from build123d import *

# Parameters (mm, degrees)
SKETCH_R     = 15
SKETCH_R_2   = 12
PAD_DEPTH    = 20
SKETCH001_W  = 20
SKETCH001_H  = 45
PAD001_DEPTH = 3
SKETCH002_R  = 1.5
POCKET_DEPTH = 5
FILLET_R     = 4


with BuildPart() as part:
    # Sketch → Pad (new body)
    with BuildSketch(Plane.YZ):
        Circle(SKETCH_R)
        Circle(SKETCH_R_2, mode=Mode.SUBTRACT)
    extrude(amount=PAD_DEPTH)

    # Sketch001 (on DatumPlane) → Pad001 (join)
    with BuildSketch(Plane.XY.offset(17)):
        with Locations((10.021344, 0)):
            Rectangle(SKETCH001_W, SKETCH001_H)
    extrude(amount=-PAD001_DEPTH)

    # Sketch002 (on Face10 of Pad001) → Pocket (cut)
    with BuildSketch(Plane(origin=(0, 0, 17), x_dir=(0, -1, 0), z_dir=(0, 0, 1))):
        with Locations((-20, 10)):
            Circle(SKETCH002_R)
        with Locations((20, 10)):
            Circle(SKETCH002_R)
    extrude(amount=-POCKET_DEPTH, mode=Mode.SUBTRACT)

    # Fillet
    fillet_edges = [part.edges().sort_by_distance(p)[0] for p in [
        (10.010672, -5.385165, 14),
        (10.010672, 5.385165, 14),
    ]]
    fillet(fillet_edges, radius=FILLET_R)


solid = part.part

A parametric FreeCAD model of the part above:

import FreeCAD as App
import Part
import Sketcher


def edges_at(feature, points):
    """Names of the edges that pass closest to the given points."""
    edges = feature.Shape.Edges
    near = lambda p: min(range(len(edges)), key=lambda i: edges[i].distToShape(Part.Vertex(*p))[0])
    return sorted({f"Edge{near(p) + 1}" for p in points})

doc = App.newDocument("Part")
body = doc.addObject("PartDesign::Body", "Body")

sketch1 = body.newObject("Sketcher::SketchObject", "Sketch")
sketch1.AttachmentSupport = (doc.getObject("YZ_Plane"), [""])
sketch1.MapMode = "FlatFace"
sketch1.addGeometry(Part.Circle(App.Vector(0, 0, 0), App.Vector(0, 0, 1), 15), False)
sketch1.addGeometry(Part.Circle(App.Vector(0, 0, 0), App.Vector(0, 0, 1), 12), False)
sketch1.addConstraint(Sketcher.Constraint("Coincident", 0, 3, -1, 1))
sketch1.addConstraint(Sketcher.Constraint("Coincident", 1, 3, -1, 1))
sketch1.addConstraint(Sketcher.Constraint("Diameter", 0, 30.0))
sketch1.addConstraint(Sketcher.Constraint("Diameter", 1, 24.0))
pad1 = body.newObject("PartDesign::Pad", "Pad")
pad1.Profile = sketch1
pad1.Length = 20

sketch2 = body.newObject("Sketcher::SketchObject", "Sketch001")
sketch2.AttachmentSupport = (doc.getObject("XY_Plane"), [""])
sketch2.MapMode = "FlatFace"
sketch2.AttachmentOffset = App.Placement(App.Vector(0, 0, 17), App.Rotation())
sketch2.addGeometry(Part.LineSegment(App.Vector(0.021344, 22.5, 0), App.Vector(0.021344, -22.5, 0)), False)
sketch2.addGeometry(Part.LineSegment(App.Vector(0.021344, -22.5, 0), App.Vector(20.021344, -22.5, 0)), False)
sketch2.addGeometry(Part.LineSegment(App.Vector(20.021344, -22.5, 0), App.Vector(20.021344, 22.5, 0)), False)
sketch2.addGeometry(Part.LineSegment(App.Vector(20.021344, 22.5, 0), App.Vector(0.021344, 22.5, 0)), False)
sketch2.addConstraint(Sketcher.Constraint("Coincident", 0, 2, 1, 1))
sketch2.addConstraint(Sketcher.Constraint("Coincident", 1, 2, 2, 1))
sketch2.addConstraint(Sketcher.Constraint("Coincident", 2, 2, 3, 1))
sketch2.addConstraint(Sketcher.Constraint("Coincident", 3, 2, 0, 1))
sketch2.addConstraint(Sketcher.Constraint("Vertical", 0))
sketch2.addConstraint(Sketcher.Constraint("Horizontal", 1))
sketch2.addConstraint(Sketcher.Constraint("Vertical", 2))
sketch2.addConstraint(Sketcher.Constraint("Horizontal", 3))
sketch2.addConstraint(Sketcher.Constraint("DistanceX", 1, 1, 1, 2, 20.0))
sketch2.addConstraint(Sketcher.Constraint("DistanceY", 0, 2, 0, 1, 45.0))
sketch2.addConstraint(Sketcher.Constraint("DistanceY", 0, 2, -1, 1, 22.5))
sketch2.addConstraint(Sketcher.Constraint("DistanceX", -1, 1, 0, 2, 0.021344))
pad2 = body.newObject("PartDesign::Pad", "Pad001")
pad2.Profile = sketch2
pad2.Length = 3
pad2.Reversed = True

sketch3 = body.newObject("Sketcher::SketchObject", "Sketch002")
sketch3.AttachmentSupport = (doc.getObject("XY_Plane"), [""])
sketch3.MapMode = "FlatFace"
sketch3.AttachmentOffset = App.Placement(App.Vector(0, 0, 17), App.Rotation())
sketch3.addGeometry(Part.Circle(App.Vector(10, 20, 0), App.Vector(0, 0, 1), 1.5), False)
sketch3.addGeometry(Part.Circle(App.Vector(10, -20, 0), App.Vector(0, 0, 1), 1.5), False)
sketch3.addConstraint(Sketcher.Constraint("Equal", 0, 1))
sketch3.addConstraint(Sketcher.Constraint("Symmetric", 0, 3, 1, 3, -1))
sketch3.addConstraint(Sketcher.Constraint("Diameter", 0, 3.0))
sketch3.addConstraint(Sketcher.Constraint("DistanceX", -1, 1, 0, 3, 10.0))
sketch3.addConstraint(Sketcher.Constraint("DistanceY", -1, 1, 0, 3, 20.0))
pocket1 = body.newObject("PartDesign::Pocket", "Pocket")
pocket1.Profile = sketch3
pocket1.Length = 5
doc.recompute()

fillet = body.newObject("PartDesign::Fillet", "Fillet")
fillet.Base = (pocket1, edges_at(pocket1, [(10.011, -5.385, 14), (10.011, 5.385, 14)]))
fillet.Radius = 4

doc.recompute()
